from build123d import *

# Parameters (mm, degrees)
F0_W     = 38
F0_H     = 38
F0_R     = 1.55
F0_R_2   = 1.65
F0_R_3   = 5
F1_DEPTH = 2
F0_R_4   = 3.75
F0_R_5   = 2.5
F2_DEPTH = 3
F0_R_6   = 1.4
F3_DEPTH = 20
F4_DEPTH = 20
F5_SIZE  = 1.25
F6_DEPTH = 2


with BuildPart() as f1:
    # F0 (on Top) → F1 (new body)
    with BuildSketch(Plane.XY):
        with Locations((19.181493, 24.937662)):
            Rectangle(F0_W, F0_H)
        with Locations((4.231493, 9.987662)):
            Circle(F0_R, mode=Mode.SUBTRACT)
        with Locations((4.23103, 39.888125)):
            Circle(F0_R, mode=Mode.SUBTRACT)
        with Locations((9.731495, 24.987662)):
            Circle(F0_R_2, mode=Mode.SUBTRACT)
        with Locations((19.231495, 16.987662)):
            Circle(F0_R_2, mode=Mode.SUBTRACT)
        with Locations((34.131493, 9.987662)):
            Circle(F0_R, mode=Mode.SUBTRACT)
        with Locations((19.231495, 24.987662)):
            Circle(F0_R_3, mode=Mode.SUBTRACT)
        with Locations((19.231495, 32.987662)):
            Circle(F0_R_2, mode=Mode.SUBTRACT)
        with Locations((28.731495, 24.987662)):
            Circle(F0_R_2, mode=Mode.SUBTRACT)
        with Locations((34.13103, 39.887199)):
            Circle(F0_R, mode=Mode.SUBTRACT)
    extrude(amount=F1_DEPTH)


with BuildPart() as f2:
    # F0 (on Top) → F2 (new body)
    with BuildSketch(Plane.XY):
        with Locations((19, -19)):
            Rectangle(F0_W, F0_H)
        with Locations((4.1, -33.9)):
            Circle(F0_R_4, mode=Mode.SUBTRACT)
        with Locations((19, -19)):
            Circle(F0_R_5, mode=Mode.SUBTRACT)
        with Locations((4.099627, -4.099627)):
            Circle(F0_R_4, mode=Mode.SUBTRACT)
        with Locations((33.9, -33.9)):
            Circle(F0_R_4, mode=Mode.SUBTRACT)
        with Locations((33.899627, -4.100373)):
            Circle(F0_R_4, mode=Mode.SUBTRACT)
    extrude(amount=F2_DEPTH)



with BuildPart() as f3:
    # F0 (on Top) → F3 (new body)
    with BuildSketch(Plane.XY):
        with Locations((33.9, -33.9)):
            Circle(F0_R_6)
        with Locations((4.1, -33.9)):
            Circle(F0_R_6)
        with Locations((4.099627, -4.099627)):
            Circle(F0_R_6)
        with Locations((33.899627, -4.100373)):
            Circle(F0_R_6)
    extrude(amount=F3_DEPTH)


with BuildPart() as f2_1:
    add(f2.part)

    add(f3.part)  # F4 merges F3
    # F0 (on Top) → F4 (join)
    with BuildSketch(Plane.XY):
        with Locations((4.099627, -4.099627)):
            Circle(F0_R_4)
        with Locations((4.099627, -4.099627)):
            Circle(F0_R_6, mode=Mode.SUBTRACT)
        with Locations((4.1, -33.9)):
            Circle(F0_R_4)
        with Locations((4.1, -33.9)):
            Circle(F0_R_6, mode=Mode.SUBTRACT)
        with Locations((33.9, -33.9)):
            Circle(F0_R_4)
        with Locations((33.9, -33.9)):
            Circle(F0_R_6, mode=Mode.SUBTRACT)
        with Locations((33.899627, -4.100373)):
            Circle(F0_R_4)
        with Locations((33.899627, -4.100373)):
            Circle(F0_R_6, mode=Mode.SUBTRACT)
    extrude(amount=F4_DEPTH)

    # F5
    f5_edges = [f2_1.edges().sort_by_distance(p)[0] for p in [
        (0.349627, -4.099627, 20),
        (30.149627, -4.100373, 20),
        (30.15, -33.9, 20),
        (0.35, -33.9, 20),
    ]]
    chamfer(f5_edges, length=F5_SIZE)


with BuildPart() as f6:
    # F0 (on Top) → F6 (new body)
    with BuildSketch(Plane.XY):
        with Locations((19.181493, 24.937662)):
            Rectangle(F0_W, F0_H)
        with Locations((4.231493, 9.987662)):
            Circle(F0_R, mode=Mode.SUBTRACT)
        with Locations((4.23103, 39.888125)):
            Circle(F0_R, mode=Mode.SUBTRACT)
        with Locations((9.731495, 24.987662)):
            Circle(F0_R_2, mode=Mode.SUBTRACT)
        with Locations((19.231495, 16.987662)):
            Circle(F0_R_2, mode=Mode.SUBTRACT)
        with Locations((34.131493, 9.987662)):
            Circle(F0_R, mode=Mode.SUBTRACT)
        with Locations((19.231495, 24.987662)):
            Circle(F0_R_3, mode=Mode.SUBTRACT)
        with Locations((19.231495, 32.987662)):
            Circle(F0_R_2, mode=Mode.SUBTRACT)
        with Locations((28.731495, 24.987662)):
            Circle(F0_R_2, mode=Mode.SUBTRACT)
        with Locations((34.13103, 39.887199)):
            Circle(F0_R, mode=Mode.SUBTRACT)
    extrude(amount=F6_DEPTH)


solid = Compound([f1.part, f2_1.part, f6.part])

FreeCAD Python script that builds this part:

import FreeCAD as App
import Part
import Sketcher

V = App.Vector
Q = App.Units.Quantity


def edges_at(feature, points):
    """Names of the edges that pass closest to the given points."""
    edges = feature.Shape.Edges
    near = lambda p: min(range(len(edges)), key=lambda i: edges[i].distToShape(Part.Vertex(*p))[0])
    return sorted({f"Edge{near(p) + 1}" for p in points})

doc = App.newDocument("Part")
params = doc.addObject("Spreadsheet::Sheet", "Params")
for row, (alias, value) in enumerate([
    ("sketch1_diameter", "10 mm"),
    ("sketch1_diameter2", "3.1 mm"),
    ("sketch1_diameter3", "3.3 mm"),
    ("sketch1_width", "38 mm"),
    ("pad1_length", "2 mm"),
    ("sketch2_diameter", "5 mm"),
    ("sketch2_diameter2", "7.5 mm"),
    ("sketch2_width", "38 mm"),
    ("pad2_length", "3 mm"),
    ("sketch3_diameter", "2.8 mm"),
    ("pad3_length", "20 mm"),
    ("sketch4_diameter", "7.5 mm"),
    ("sketch4_diameter2", "2.8 mm"),
    ("pad4_length", "20 mm"),
    ("chamfer_size", "1.25 mm"),
    ("sketch5_diameter", "10 mm"),
    ("sketch5_diameter2", "3.1 mm"),
    ("sketch5_diameter3", "3.3 mm"),
    ("sketch5_width", "38 mm"),
    ("pad5_length", "2 mm"),
], start=1):
    params.set(f"A{row}", alias)
    params.set(f"B{row}", "=" + value)
    params.setAlias(f"B{row}", alias)

body = doc.addObject("PartDesign::Body", "Body")

sketch1 = doc.addObject("Sketcher::SketchObject", "Sketch")
body.addObject(sketch1)
sketch1.AttachmentSupport = (doc.XY_Plane, [""])
sketch1.MapMode = "FlatFace"
sketch1.addGeometry([
    Part.LineSegment(V(0.181493, 43.937662, 0), V(0.181493, 5.937662, 0)),
    Part.LineSegment(V(0.181493, 5.937662, 0), V(38.181493, 5.937662, 0)),
    Part.LineSegment(V(38.181493, 5.937662, 0), V(38.181493, 43.937662, 0)),
    Part.LineSegment(V(38.181493, 43.937662, 0), V(0.181493, 43.937662, 0)),
    Part.Circle(V(4.231493, 9.987662, 0), V(0, 0, 1), 1.55),
    Part.Circle(V(34.131493, 9.987662, 0), V(0, 0, 1), 1.55),
    Part.Circle(V(19.231495, 16.987662, 0), V(0, 0, 1), 1.65),
    Part.Circle(V(9.731495, 24.987662, 0), V(0, 0, 1), 1.65),
    Part.Circle(V(4.23103, 39.888125, 0), V(0, 0, 1), 1.55),
    Part.Circle(V(19.231495, 24.987662, 0), V(0, 0, 1), 5),
    Part.Circle(V(19.231495, 32.987662, 0), V(0, 0, 1), 1.65),
    Part.Circle(V(28.731495, 24.987662, 0), V(0, 0, 1), 1.65),
    Part.Circle(V(34.13103, 39.887199, 0), V(0, 0, 1), 1.55),
], False)
sketch1.addConstraint([
    Sketcher.Constraint("Coincident", 0, 2, 1, 1),
    Sketcher.Constraint("Coincident", 1, 2, 2, 1),
    Sketcher.Constraint("Coincident", 2, 2, 3, 1),
    Sketcher.Constraint("Coincident", 3, 2, 0, 1),
    Sketcher.Constraint("Vertical", 0),
    Sketcher.Constraint("Horizontal", 1),
    Sketcher.Constraint("Vertical", 2),
    Sketcher.Constraint("Horizontal", 3),
    Sketcher.Constraint("Equal", 4, 5),
    Sketcher.Constraint("Equal", 6, 7),
    Sketcher.Constraint("Equal", 5, 8),
    Sketcher.Constraint("Equal", 7, 10),
    Sketcher.Constraint("Equal", 10, 11),
    Sketcher.Constraint("Equal", 8, 12),
    Sketcher.Constraint("Horizontal", 4, 3, 5, 3),
    Sketcher.Constraint("Horizontal", 7, 3, 9, 3),
    Sketcher.Constraint("Horizontal", 9, 3, 11, 3),
    Sketcher.Constraint("Vertical", 6, 3, 9, 3),
    Sketcher.Constraint("Vertical", 9, 3, 10, 3),
    Sketcher.Constraint("Equal", 3, 0),
    Sketcher.Constraint("Diameter", 9, Q("10 mm")),
    Sketcher.Constraint("Diameter", 4, Q("3.1 mm")),
    Sketcher.Constraint("Diameter", 6, Q("3.3 mm")),
    Sketcher.Constraint("DistanceX", 1, 1, 1, 2, Q("38 mm")),
    Sketcher.Constraint("DistanceY", 5, 3, 6, 3, Q("7 mm")),
    Sketcher.Constraint("DistanceX", 4, 3, 6, 3, Q("15.000002 mm")),
    Sketcher.Constraint("DistanceY", 6, 3, 7, 3, Q("8 mm")),
    Sketcher.Constraint("DistanceY", 9, 3, 10, 3, Q("8 mm")),
    Sketcher.Constraint("DistanceX", 7, 3, 11, 3, Q("19 mm")),
    Sketcher.Constraint("DistanceX", 4, 3, 5, 3, Q("29.9 mm")),
    Sketcher.Constraint("DistanceX", 7, 3, 6, 3, Q("9.5 mm")),
    Sketcher.Constraint("DistanceX", 0, 2, 4, 3, Q("4.05 mm")),
    Sketcher.Constraint("DistanceY", 0, 2, 4, 3, Q("4.05 mm")),
    Sketcher.Constraint("DistanceY", -1, 1, 12, 3, Q("39.887199 mm")),
    Sketcher.Constraint("DistanceY", -1, 1, 6, 3, Q("16.987662 mm")),
    Sketcher.Constraint("DistanceX", -1, 1, 8, 3, Q("4.23103 mm")),
    Sketcher.Constraint("DistanceX", -1, 1, 12, 3, Q("34.13103 mm")),
    Sketcher.Constraint("DistanceX", -1, 1, 4, 3, Q("4.231493 mm")),
    Sketcher.Constraint("DistanceY", -1, 1, 8, 3, Q("39.888125 mm")),
])
sketch1.setExpression("Constraints[20]", "Params.sketch1_diameter")
sketch1.setExpression("Constraints[21]", "Params.sketch1_diameter2")
sketch1.setExpression("Constraints[22]", "Params.sketch1_diameter3")
sketch1.setExpression("Constraints[23]", "Params.sketch1_width")
pad1 = doc.addObject("PartDesign::Pad", "Pad")
body.addObject(pad1)
pad1.Profile = sketch1
pad1.setExpression("Length", "Params.pad1_length")
body2 = doc.addObject("PartDesign::Body", "Body001")

sketch2 = doc.addObject("Sketcher::SketchObject", "Sketch001")
body2.addObject(sketch2)
sketch2.AttachmentSupport = (doc.getObject("XY_Plane001"), [""])
sketch2.MapMode = "FlatFace"
sketch2.addGeometry([
    Part.LineSegment(V(0, 0, 0), V(0, -38, 0)),
    Part.LineSegment(V(0, -38, 0), V(38, -38, 0)),
    Part.LineSegment(V(38, -38, 0), V(38, 0, 0)),
    Part.LineSegment(V(38, 0, 0), V(0, 0, 0)),
    Part.Circle(V(4.1, -33.9, 0), V(0, 0, 1), 3.75),
    Part.Circle(V(33.9, -33.9, 0), V(0, 0, 1), 3.75),
    Part.Circle(V(19, -19, 0), V(0, 0, 1), 2.5),
    Part.Circle(V(4.099627, -4.099627, 0), V(0, 0, 1), 3.75),
    Part.Circle(V(33.899627, -4.100373, 0), V(0, 0, 1), 3.75),
], False)
sketch2.addConstraint([
    Sketcher.Constraint("Coincident", 0, 2, 1, 1),
    Sketcher.Constraint("Coincident", 1, 2, 2, 1),
    Sketcher.Constraint("Coincident", 2, 2, 3, 1),
    Sketcher.Constraint("Coincident", 3, 2, 0, 1),
    Sketcher.Constraint("Vertical", 0),
    Sketcher.Constraint("Horizontal", 1),
    Sketcher.Constraint("Vertical", 2),
    Sketcher.Constraint("Horizontal", 3),
    Sketcher.Constraint("Coincident", 3, 2, -1, 1),
    Sketcher.Constraint("Equal", 4, 5),
    Sketcher.Constraint("Equal", 5, 7),
    Sketcher.Constraint("Equal", 7, 8),
    Sketcher.Constraint("Horizontal", 4, 3, 5, 3),
    Sketcher.Constraint("Equal", 3, 0),
    Sketcher.Constraint("Diameter", 6, Q("5 mm")),
    Sketcher.Constraint("Diameter", 4, Q("7.5 mm")),
    Sketcher.Constraint("DistanceX", 1, 1, 1, 2, Q("38 mm")),
    Sketcher.Constraint("DistanceX", -1, 1, 6, 3, Q("19 mm")),
    Sketcher.Constraint("DistanceY", 6, 3, -1, 1, Q("19 mm")),
    Sketcher.Constraint("DistanceX", -1, 1, 4, 3, Q("4.1 mm")),
    Sketcher.Constraint("DistanceY", 4, 3, -1, 1, Q("33.9 mm")),
    Sketcher.Constraint("DistanceX", -1, 1, 5, 3, Q("33.9 mm")),
    Sketcher.Constraint("DistanceX", 7, 3, 8, 3, Q("29.8 mm")),
    Sketcher.Constraint("DistanceX", -1, 1, 7, 3, Q("4.099627 mm")),
    Sketcher.Constraint("DistanceY", 7, 3, -1, 1, Q("4.099627 mm")),
    Sketcher.Constraint("DistanceY", 8, 3, -1, 1, Q("4.100373 mm")),
])
sketch2.setExpression("Constraints[14]", "Params.sketch2_diameter")
sketch2.setExpression("Constraints[15]", "Params.sketch2_diameter2")
sketch2.setExpression("Constraints[16]", "Params.sketch2_width")
pad2 = doc.addObject("PartDesign::Pad", "Pad001")
body2.addObject(pad2)
pad2.Profile = sketch2
pad2.setExpression("Length", "Params.pad2_length")
body3 = doc.addObject("PartDesign::Body", "Body002")
body3.AllowCompound = True

sketch3 = doc.addObject("Sketcher::SketchObject", "Sketch002")
body3.addObject(sketch3)
sketch3.AttachmentSupport = (doc.getObject("XY_Plane002"), [""])
sketch3.MapMode = "FlatFace"
sketch3.addGeometry([
    Part.Circle(V(33.9, -33.9, 0), V(0, 0, 1), 1.4),
    Part.Circle(V(4.1, -33.9, 0), V(0, 0, 1), 1.4),
    Part.Circle(V(4.099627, -4.099627, 0), V(0, 0, 1), 1.4),
    Part.Circle(V(33.899627, -4.100373, 0), V(0, 0, 1), 1.4),
], False)
sketch3.addConstraint([
    Sketcher.Constraint("Equal", 0, 1),
    Sketcher.Constraint("Equal", 1, 2),
    Sketcher.Constraint("Equal", 2, 3),
    Sketcher.Constraint("Horizontal", 0, 3, 1, 3),
    Sketcher.Constraint("Diameter", 0, Q("2.8 mm")),
    Sketcher.Constraint("DistanceX", -1, 1, 0, 3, Q("33.9 mm")),
    Sketcher.Constraint("DistanceY", 0, 3, -1, 1, Q("33.9 mm")),
    Sketcher.Constraint("DistanceX", -1, 1, 1, 3, Q("4.1 mm")),
    Sketcher.Constraint("DistanceX", 2, 3, 3, 3, Q("29.8 mm")),
    Sketcher.Constraint("DistanceX", -1, 1, 2, 3, Q("4.099627 mm")),
    Sketcher.Constraint("DistanceY", 2, 3, -1, 1, Q("4.099627 mm")),
    Sketcher.Constraint("DistanceY", 3, 3, -1, 1, Q("4.100373 mm")),
])
sketch3.setExpression("Constraints[4]", "Params.sketch3_diameter")
pad3 = doc.addObject("PartDesign::Pad", "Pad002")
body3.addObject(pad3)
pad3.Profile = sketch3
pad3.setExpression("Length", "Params.pad3_length")
body2.AllowCompound = True
doc.recompute()

boolean = doc.addObject("PartDesign::Boolean", "Boolean")
body2.addObject(boolean)
boolean.Type = "Fuse"
boolean.addObjects([body3])

sketch4 = doc.addObject("Sketcher::SketchObject", "Sketch003")
body2.addObject(sketch4)
sketch4.AttachmentSupport = (doc.getObject("XY_Plane001"), [""])
sketch4.MapMode = "FlatFace"
sketch4.addGeometry([
    Part.Circle(V(4.099627, -4.099627, 0), V(0, 0, 1), 3.75),
    Part.Circle(V(4.099627, -4.099627, 0), V(0, 0, 1), 1.4),
    Part.Circle(V(4.1, -33.9, 0), V(0, 0, 1), 3.75),
    Part.Circle(V(4.1, -33.9, 0), V(0, 0, 1), 1.4),
    Part.Circle(V(33.9, -33.9, 0), V(0, 0, 1), 3.75),
    Part.Circle(V(33.9, -33.9, 0), V(0, 0, 1), 1.4),
    Part.Circle(V(33.899627, -4.100373, 0), V(0, 0, 1), 3.75),
    Part.Circle(V(33.899627, -4.100373, 0), V(0, 0, 1), 1.4),
], False)
sketch4.addConstraint([
    Sketcher.Constraint("Coincident", 1, 3, 0, 3),
    Sketcher.Constraint("Coincident", 3, 3, 2, 3),
    Sketcher.Constraint("Coincident", 5, 3, 4, 3),
    Sketcher.Constraint("Coincident", 7, 3, 6, 3),
    Sketcher.Constraint("Equal", 0, 2),
    Sketcher.Constraint("Equal", 1, 3),
    Sketcher.Constraint("Equal", 2, 4),
    Sketcher.Constraint("Equal", 3, 5),
    Sketcher.Constraint("Equal", 4, 6),
    Sketcher.Constraint("Equal", 5, 7),
    Sketcher.Constraint("Horizontal", 3, 3, 4, 3),
    Sketcher.Constraint("Diameter", 0, Q("7.5 mm")),
    Sketcher.Constraint("Diameter", 1, Q("2.8 mm")),
    Sketcher.Constraint("DistanceX", -1, 1, 2, 3, Q("4.1 mm")),
    Sketcher.Constraint("DistanceY", 2, 3, -1, 1, Q("33.9 mm")),
    Sketcher.Constraint("DistanceX", -1, 1, 4, 3, Q("33.9 mm")),
    Sketcher.Constraint("DistanceX", 0, 3, 6, 3, Q("29.8 mm")),
    Sketcher.Constraint("DistanceX", -1, 1, 0, 3, Q("4.099627 mm")),
    Sketcher.Constraint("DistanceY", 0, 3, -1, 1, Q("4.099627 mm")),
    Sketcher.Constraint("DistanceY", 6, 3, -1, 1, Q("4.100373 mm")),
])
sketch4.setExpression("Constraints[11]", "Params.sketch4_diameter")
sketch4.setExpression("Constraints[12]", "Params.sketch4_diameter2")
pad4 = doc.addObject("PartDesign::Pad", "Pad003")
body2.addObject(pad4)
pad4.Profile = sketch4
pad4.setExpression("Length", "Params.pad4_length")
doc.recompute()

chamfer = doc.addObject("PartDesign::Chamfer", "Chamfer")
body2.addObject(chamfer)
chamfer.Base = (pad4, edges_at(pad4, [
    (0.35, -4.1, 20),
    (30.15, -4.1, 20),
    (30.15, -33.9, 20),
    (0.35, -33.9, 20),
]))
chamfer.setExpression("Size", "Params.chamfer_size")
body4 = doc.addObject("PartDesign::Body", "Body003")

sketch5 = doc.addObject("Sketcher::SketchObject", "Sketch004")
body4.addObject(sketch5)
sketch5.AttachmentSupport = (doc.getObject("XY_Plane003"), [""])
sketch5.MapMode = "FlatFace"
sketch5.addGeometry([
    Part.LineSegment(V(0.181493, 43.937662, 0), V(0.181493, 5.937662, 0)),
    Part.LineSegment(V(0.181493, 5.937662, 0), V(38.181493, 5.937662, 0)),
    Part.LineSegment(V(38.181493, 5.937662, 0), V(38.181493, 43.937662, 0)),
    Part.LineSegment(V(38.181493, 43.937662, 0), V(0.181493, 43.937662, 0)),
    Part.Circle(V(4.231493, 9.987662, 0), V(0, 0, 1), 1.55),
    Part.Circle(V(34.131493, 9.987662, 0), V(0, 0, 1), 1.55),
    Part.Circle(V(19.231495, 16.987662, 0), V(0, 0, 1), 1.65),
    Part.Circle(V(9.731495, 24.987662, 0), V(0, 0, 1), 1.65),
    Part.Circle(V(4.23103, 39.888125, 0), V(0, 0, 1), 1.55),
    Part.Circle(V(19.231495, 24.987662, 0), V(0, 0, 1), 5),
    Part.Circle(V(19.231495, 32.987662, 0), V(0, 0, 1), 1.65),
    Part.Circle(V(28.731495, 24.987662, 0), V(0, 0, 1), 1.65),
    Part.Circle(V(34.13103, 39.887199, 0), V(0, 0, 1), 1.55),
], False)
sketch5.addConstraint([
    Sketcher.Constraint("Coincident", 0, 2, 1, 1),
    Sketcher.Constraint("Coincident", 1, 2, 2, 1),
    Sketcher.Constraint("Coincident", 2, 2, 3, 1),
    Sketcher.Constraint("Coincident", 3, 2, 0, 1),
    Sketcher.Constraint("Vertical", 0),
    Sketcher.Constraint("Horizontal", 1),
    Sketcher.Constraint("Vertical", 2),
    Sketcher.Constraint("Horizontal", 3),
    Sketcher.Constraint("Equal", 4, 5),
    Sketcher.Constraint("Equal", 6, 7),
    Sketcher.Constraint("Equal", 5, 8),
    Sketcher.Constraint("Equal", 7, 10),
    Sketcher.Constraint("Equal", 10, 11),
    Sketcher.Constraint("Equal", 8, 12),
    Sketcher.Constraint("Horizontal", 4, 3, 5, 3),
    Sketcher.Constraint("Horizontal", 7, 3, 9, 3),
    Sketcher.Constraint("Horizontal", 9, 3, 11, 3),
    Sketcher.Constraint("Vertical", 6, 3, 9, 3),
    Sketcher.Constraint("Vertical", 9, 3, 10, 3),
    Sketcher.Constraint("Equal", 3, 0),
    Sketcher.Constraint("Diameter", 9, Q("10 mm")),
    Sketcher.Constraint("Diameter", 4, Q("3.1 mm")),
    Sketcher.Constraint("Diameter", 6, Q("3.3 mm")),
    Sketcher.Constraint("DistanceX", 1, 1, 1, 2, Q("38 mm")),
    Sketcher.Constraint("DistanceY", 5, 3, 6, 3, Q("7 mm")),
    Sketcher.Constraint("DistanceX", 4, 3, 6, 3, Q("15.000002 mm")),
    Sketcher.Constraint("DistanceY", 6, 3, 7, 3, Q("8 mm")),
    Sketcher.Constraint("DistanceY", 9, 3, 10, 3, Q("8 mm")),
    Sketcher.Constraint("DistanceX", 7, 3, 11, 3, Q("19 mm")),
    Sketcher.Constraint("DistanceX", 4, 3, 5, 3, Q("29.9 mm")),
    Sketcher.Constraint("DistanceX", 7, 3, 6, 3, Q("9.5 mm")),
    Sketcher.Constraint("DistanceX", 0, 2, 4, 3, Q("4.05 mm")),
    Sketcher.Constraint("DistanceY", 0, 2, 4, 3, Q("4.05 mm")),
    Sketcher.Constraint("DistanceY", -1, 1, 12, 3, Q("39.887199 mm")),
    Sketcher.Constraint("DistanceY", -1, 1, 6, 3, Q("16.987662 mm")),
    Sketcher.Constraint("DistanceX", -1, 1, 8, 3, Q("4.23103 mm")),
    Sketcher.Constraint("DistanceX", -1, 1, 12, 3, Q("34.13103 mm")),
    Sketcher.Constraint("DistanceX", -1, 1, 4, 3, Q("4.231493 mm")),
    Sketcher.Constraint("DistanceY", -1, 1, 8, 3, Q("39.888125 mm")),
])
sketch5.setExpression("Constraints[20]", "Params.sketch5_diameter")
sketch5.setExpression("Constraints[21]", "Params.sketch5_diameter2")
sketch5.setExpression("Constraints[22]", "Params.sketch5_diameter3")
sketch5.setExpression("Constraints[23]", "Params.sketch5_width")
pad5 = doc.addObject("PartDesign::Pad", "Pad004")
body4.addObject(pad5)
pad5.Profile = sketch5
pad5.setExpression("Length", "Params.pad5_length")

doc.recompute()
